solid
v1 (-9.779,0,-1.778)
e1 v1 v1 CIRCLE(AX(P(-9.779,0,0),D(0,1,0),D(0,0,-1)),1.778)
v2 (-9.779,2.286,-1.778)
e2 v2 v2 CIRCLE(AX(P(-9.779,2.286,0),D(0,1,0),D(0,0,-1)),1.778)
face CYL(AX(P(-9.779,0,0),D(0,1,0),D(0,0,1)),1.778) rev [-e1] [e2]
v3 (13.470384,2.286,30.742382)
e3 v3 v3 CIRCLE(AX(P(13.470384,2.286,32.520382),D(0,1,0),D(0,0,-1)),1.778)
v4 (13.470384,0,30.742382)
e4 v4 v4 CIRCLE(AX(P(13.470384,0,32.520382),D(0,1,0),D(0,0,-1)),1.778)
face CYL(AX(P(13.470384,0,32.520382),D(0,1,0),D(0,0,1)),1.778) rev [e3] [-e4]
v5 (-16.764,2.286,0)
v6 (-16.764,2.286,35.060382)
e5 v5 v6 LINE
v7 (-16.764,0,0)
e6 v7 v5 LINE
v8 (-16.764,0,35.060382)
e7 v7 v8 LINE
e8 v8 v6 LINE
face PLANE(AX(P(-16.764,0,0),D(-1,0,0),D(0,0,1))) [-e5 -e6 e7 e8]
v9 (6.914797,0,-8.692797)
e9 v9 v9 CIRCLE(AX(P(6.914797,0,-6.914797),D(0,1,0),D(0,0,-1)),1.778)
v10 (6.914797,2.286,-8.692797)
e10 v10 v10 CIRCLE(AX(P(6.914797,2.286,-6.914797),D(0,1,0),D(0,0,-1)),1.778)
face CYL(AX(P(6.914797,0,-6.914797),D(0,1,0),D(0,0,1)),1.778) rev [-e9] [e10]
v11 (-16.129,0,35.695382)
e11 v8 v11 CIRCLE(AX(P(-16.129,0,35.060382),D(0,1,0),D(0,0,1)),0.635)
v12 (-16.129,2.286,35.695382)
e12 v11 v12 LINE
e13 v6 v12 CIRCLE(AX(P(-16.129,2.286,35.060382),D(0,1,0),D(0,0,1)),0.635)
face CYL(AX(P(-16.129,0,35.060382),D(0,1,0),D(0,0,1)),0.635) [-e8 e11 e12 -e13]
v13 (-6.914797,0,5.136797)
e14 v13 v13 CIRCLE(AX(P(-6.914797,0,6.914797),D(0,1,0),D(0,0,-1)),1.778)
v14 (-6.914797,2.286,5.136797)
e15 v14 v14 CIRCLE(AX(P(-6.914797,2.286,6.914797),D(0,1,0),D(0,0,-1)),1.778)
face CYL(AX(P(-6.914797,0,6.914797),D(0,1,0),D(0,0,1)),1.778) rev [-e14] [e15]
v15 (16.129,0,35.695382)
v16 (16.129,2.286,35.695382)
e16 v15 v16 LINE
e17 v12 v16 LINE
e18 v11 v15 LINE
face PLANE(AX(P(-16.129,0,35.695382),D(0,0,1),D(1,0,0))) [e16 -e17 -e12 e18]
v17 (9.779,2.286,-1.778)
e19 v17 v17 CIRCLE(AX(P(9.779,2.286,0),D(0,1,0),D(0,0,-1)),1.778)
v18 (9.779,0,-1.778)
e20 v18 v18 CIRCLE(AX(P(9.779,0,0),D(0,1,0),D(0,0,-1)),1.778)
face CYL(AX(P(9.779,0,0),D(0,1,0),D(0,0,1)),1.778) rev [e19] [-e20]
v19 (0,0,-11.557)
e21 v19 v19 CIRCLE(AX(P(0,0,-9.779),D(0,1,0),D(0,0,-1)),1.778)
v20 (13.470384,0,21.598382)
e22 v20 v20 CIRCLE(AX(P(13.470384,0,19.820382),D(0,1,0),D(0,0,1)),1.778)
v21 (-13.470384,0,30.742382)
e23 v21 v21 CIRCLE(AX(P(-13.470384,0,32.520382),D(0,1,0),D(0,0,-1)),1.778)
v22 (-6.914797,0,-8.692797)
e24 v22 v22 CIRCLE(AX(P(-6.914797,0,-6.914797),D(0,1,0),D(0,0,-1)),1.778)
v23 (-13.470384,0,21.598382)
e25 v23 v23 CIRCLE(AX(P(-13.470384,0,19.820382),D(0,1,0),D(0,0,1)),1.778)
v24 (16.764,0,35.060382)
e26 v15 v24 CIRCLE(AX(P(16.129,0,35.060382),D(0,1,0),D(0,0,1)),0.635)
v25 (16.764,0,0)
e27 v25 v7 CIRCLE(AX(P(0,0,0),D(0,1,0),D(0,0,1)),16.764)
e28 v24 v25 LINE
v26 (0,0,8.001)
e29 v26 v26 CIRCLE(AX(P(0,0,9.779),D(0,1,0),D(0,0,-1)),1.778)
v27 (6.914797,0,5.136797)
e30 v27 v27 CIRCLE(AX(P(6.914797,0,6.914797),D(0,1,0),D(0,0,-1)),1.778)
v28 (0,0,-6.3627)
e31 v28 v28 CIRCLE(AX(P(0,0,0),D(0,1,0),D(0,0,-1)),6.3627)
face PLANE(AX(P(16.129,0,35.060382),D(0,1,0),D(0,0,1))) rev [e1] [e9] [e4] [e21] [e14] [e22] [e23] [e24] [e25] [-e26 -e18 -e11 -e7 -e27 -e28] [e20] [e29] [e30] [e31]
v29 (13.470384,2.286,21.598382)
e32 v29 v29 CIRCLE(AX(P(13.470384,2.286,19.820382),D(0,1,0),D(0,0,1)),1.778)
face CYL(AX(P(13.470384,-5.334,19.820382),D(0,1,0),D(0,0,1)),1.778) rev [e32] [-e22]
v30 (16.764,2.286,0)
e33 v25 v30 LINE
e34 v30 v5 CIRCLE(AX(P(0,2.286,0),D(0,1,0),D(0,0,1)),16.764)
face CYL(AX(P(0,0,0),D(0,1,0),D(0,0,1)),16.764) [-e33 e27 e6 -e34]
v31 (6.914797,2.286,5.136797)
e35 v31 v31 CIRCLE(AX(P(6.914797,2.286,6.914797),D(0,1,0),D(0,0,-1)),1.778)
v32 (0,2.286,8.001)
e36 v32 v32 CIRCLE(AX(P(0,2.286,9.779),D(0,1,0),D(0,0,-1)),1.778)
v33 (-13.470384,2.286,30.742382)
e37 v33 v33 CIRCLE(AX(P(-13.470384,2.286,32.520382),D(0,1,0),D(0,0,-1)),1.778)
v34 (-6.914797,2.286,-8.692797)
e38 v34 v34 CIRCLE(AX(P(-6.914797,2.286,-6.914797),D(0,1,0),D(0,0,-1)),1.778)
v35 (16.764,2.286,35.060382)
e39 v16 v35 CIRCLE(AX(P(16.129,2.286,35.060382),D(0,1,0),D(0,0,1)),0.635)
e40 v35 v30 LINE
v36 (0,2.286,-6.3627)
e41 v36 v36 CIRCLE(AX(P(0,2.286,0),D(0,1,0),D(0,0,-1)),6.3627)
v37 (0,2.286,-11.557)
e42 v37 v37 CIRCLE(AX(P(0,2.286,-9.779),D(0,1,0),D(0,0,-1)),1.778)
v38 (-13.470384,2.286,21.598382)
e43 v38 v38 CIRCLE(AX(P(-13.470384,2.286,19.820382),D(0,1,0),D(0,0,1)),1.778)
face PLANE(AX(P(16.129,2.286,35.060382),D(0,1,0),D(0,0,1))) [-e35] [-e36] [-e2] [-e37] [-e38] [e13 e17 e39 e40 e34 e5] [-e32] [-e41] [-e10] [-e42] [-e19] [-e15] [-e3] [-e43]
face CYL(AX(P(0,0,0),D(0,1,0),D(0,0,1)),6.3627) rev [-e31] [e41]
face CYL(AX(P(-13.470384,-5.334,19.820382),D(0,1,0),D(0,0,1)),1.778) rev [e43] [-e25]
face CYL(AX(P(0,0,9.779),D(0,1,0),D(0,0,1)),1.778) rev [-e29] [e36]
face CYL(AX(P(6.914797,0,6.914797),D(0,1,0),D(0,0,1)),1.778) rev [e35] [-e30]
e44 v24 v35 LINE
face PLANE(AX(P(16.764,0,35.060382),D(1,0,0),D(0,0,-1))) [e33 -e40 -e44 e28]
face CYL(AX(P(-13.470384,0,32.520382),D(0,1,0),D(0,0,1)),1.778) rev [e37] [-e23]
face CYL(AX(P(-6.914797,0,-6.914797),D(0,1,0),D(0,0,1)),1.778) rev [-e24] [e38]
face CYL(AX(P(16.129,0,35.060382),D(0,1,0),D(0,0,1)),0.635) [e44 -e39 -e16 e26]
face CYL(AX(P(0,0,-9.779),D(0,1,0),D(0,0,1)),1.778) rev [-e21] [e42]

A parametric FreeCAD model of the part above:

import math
import FreeCAD as App
import Part
import Sketcher
Q = App.Units.Quantity

doc = App.newDocument("Part")
body = doc.addObject("PartDesign::Body", "Body")

# Sketch on XZ plane
sketch1 = doc.addObject("Sketcher::SketchObject", "Sketch")
body.addObject(sketch1)
sketch1.AttachmentSupport = (doc.XZ_Plane, [""])
sketch1.MapMode = "FlatFace"
sketch1.AttachmentOffset = App.Placement(App.Vector(0, 0, -0.09 * 25.4), App.Rotation())
sketch1.addGeometry([
    Part.LineSegment(App.Vector(16.764, 35.060382, 0), App.Vector(16.764, 0, 0)),  # 0
    Part.ArcOfCircle(Part.Circle(App.Vector(0, 0, 0), App.Vector(0, 0, 1), 16.764), math.radians(180), math.radians(360)),  # 1
    Part.LineSegment(App.Vector(-16.764, 0, 0), App.Vector(-16.764, 35.060382, 0)),  # 2
    Part.ArcOfCircle(Part.Circle(App.Vector(-16.129, 35.060382, 0), App.Vector(0, 0, 1), 0.635), math.radians(90), math.radians(180)),  # 3
    Part.LineSegment(App.Vector(-16.129, 35.695382, 0), App.Vector(16.129, 35.695382, 0)),  # 4
    Part.ArcOfCircle(Part.Circle(App.Vector(16.129, 35.060382, 0), App.Vector(0, 0, 1), 0.635), math.radians(0), math.radians(90)),  # 5
    Part.Circle(App.Vector(-13.470384, 32.520382, 0), App.Vector(0, 0, 1), 1.778),  # 6
    Part.Circle(App.Vector(13.470384, 32.520382, 0), App.Vector(0, 0, 1), 1.778),  # 7
    Part.Circle(App.Vector(-9.779, 0, 0), App.Vector(0, 0, 1), 1.778),  # 8
    Part.Circle(App.Vector(-6.914797, 6.914797, 0), App.Vector(0, 0, 1), 1.778),  # 9
    Part.Circle(App.Vector(-6.914797, -6.914797, 0), App.Vector(0, 0, 1), 1.778),  # 10
    Part.Circle(App.Vector(0, 9.779, 0), App.Vector(0, 0, 1), 1.778),  # 11
    Part.Circle(App.Vector(6.914797, 6.914797, 0), App.Vector(0, 0, 1), 1.778),  # 12
    Part.Circle(App.Vector(0, 0, 0), App.Vector(0, 0, 1), 6.3627),  # 13
    Part.Circle(App.Vector(9.779, 0, 0), App.Vector(0, 0, 1), 1.778),  # 14
    Part.Circle(App.Vector(0, -9.779, 0), App.Vector(0, 0, 1), 1.778),  # 15
    Part.Circle(App.Vector(6.914797, -6.914797, 0), App.Vector(0, 0, 1), 1.778),  # 16
], False)
sketch1.addConstraint([
    Sketcher.Constraint("Tangent", 0, 2, 1, 2),
    Sketcher.Constraint("Tangent", 1, 1, 2, 1),
    Sketcher.Constraint("Tangent", 2, 2, 3, 2),
    Sketcher.Constraint("Tangent", 3, 1, 4, 1),
    Sketcher.Constraint("Tangent", 4, 2, 5, 2),
    Sketcher.Constraint("Tangent", 5, 1, 0, 1),
    Sketcher.Constraint("Vertical", 0),
    Sketcher.Constraint("Vertical", 2),
    Sketcher.Constraint("Horizontal", 4),
    Sketcher.Constraint("Coincident", 1, 3, -1, 1),
    Sketcher.Constraint("Coincident", 13, 3, -1, 1),
    Sketcher.Constraint("Equal", 3, 5),
    Sketcher.Constraint("Equal", 6, 7),
    Sketcher.Constraint("Equal", 7, 8),
    Sketcher.Constraint("Equal", 8, 9),
    Sketcher.Constraint("Equal", 9, 10),
    Sketcher.Constraint("Equal", 10, 11),
    Sketcher.Constraint("Equal", 11, 12),
    Sketcher.Constraint("Equal", 12, 14),
    Sketcher.Constraint("Equal", 14, 15),
    Sketcher.Constraint("Equal", 15, 16),
    Sketcher.Constraint("Symmetric", 10, 3, 12, 3, -1, 1),
    Sketcher.Constraint("Symmetric", 8, 3, 14, 3, -1, 1),
    Sketcher.Constraint("Symmetric", 11, 3, 15, 3, -1, 1),
    Sketcher.Constraint("Symmetric", 9, 3, 16, 3, -1, 1),
    Sketcher.Constraint("Symmetric", 6, 3, 7, 3, -2),
    Sketcher.Constraint("Symmetric", 9, 3, 12, 3, -2),
    Sketcher.Constraint("PointOnObject", 8, 3, -1),
    Sketcher.Constraint("PointOnObject", 11, 3, -2),
    Sketcher.Constraint("Diameter", 6, Q("0.14 in")),
    Sketcher.Constraint("Radius", 1, Q("0.66 in")),
    Sketcher.Constraint("Diameter", 13, Q("0.501 in")),
    Sketcher.Constraint("Radius", 3, Q("0.025 in")),
    Sketcher.Constraint("DistanceY", 6, 3, 3, 3, Q("0.1 in")),
    Sketcher.Constraint("DistanceX", 3, 3, 8, 3, Q("0.25 in")),
    Sketcher.Constraint("DistanceY", -1, 1, 11, 3, Q("0.385 in")),
    Sketcher.Constraint("DistanceY", 0, 2, 0, 1, 35.060382),
    Sketcher.Constraint("DistanceX", 6, 3, 7, 3, 26.940768),
    Sketcher.Constraint("DistanceX", 9, 3, 7, 3, 20.385181),
    Sketcher.Constraint("DistanceY", 10, 3, 6, 3, 39.435179),
])
pad1 = doc.addObject("PartDesign::Pad", "Pad")
body.addObject(pad1)
pad1.Profile = sketch1
pad1.Length = Q("0.09 in")

# Sketch on XZ plane
sketch2 = doc.addObject("Sketcher::SketchObject", "Sketch001")
body.addObject(sketch2)
sketch2.AttachmentSupport = (doc.XZ_Plane, [""])
sketch2.MapMode = "FlatFace"
sketch2.AttachmentOffset = App.Placement(App.Vector(0, 0, -0.09 * 25.4), App.Rotation())
sketch2.addGeometry([
    Part.Circle(App.Vector(13.470384, 19.820382, 0), App.Vector(0, 0, 1), 1.778),
    Part.Circle(App.Vector(-13.470384, 19.820382, 0), App.Vector(0, 0, 1), 1.778),
], False)
sketch2.addConstraint([
    Sketcher.Constraint("Equal", 0, 1),
    Sketcher.Constraint("Symmetric", 0, 3, 1, 3, -2),
    Sketcher.Constraint("Diameter", 0, Q("0.14 in")),
    Sketcher.Constraint("DistanceY", -1, 1, 0, 3, 19.820382),
    Sketcher.Constraint("DistanceX", 1, 3, 0, 3, 26.940768),
])
pocket1 = doc.addObject("PartDesign::Pocket", "Pocket")
body.addObject(pocket1)
pocket1.Profile = sketch2
pocket1.Length = Q("0.3 in")
pocket1.Reversed = True

doc.recompute()
